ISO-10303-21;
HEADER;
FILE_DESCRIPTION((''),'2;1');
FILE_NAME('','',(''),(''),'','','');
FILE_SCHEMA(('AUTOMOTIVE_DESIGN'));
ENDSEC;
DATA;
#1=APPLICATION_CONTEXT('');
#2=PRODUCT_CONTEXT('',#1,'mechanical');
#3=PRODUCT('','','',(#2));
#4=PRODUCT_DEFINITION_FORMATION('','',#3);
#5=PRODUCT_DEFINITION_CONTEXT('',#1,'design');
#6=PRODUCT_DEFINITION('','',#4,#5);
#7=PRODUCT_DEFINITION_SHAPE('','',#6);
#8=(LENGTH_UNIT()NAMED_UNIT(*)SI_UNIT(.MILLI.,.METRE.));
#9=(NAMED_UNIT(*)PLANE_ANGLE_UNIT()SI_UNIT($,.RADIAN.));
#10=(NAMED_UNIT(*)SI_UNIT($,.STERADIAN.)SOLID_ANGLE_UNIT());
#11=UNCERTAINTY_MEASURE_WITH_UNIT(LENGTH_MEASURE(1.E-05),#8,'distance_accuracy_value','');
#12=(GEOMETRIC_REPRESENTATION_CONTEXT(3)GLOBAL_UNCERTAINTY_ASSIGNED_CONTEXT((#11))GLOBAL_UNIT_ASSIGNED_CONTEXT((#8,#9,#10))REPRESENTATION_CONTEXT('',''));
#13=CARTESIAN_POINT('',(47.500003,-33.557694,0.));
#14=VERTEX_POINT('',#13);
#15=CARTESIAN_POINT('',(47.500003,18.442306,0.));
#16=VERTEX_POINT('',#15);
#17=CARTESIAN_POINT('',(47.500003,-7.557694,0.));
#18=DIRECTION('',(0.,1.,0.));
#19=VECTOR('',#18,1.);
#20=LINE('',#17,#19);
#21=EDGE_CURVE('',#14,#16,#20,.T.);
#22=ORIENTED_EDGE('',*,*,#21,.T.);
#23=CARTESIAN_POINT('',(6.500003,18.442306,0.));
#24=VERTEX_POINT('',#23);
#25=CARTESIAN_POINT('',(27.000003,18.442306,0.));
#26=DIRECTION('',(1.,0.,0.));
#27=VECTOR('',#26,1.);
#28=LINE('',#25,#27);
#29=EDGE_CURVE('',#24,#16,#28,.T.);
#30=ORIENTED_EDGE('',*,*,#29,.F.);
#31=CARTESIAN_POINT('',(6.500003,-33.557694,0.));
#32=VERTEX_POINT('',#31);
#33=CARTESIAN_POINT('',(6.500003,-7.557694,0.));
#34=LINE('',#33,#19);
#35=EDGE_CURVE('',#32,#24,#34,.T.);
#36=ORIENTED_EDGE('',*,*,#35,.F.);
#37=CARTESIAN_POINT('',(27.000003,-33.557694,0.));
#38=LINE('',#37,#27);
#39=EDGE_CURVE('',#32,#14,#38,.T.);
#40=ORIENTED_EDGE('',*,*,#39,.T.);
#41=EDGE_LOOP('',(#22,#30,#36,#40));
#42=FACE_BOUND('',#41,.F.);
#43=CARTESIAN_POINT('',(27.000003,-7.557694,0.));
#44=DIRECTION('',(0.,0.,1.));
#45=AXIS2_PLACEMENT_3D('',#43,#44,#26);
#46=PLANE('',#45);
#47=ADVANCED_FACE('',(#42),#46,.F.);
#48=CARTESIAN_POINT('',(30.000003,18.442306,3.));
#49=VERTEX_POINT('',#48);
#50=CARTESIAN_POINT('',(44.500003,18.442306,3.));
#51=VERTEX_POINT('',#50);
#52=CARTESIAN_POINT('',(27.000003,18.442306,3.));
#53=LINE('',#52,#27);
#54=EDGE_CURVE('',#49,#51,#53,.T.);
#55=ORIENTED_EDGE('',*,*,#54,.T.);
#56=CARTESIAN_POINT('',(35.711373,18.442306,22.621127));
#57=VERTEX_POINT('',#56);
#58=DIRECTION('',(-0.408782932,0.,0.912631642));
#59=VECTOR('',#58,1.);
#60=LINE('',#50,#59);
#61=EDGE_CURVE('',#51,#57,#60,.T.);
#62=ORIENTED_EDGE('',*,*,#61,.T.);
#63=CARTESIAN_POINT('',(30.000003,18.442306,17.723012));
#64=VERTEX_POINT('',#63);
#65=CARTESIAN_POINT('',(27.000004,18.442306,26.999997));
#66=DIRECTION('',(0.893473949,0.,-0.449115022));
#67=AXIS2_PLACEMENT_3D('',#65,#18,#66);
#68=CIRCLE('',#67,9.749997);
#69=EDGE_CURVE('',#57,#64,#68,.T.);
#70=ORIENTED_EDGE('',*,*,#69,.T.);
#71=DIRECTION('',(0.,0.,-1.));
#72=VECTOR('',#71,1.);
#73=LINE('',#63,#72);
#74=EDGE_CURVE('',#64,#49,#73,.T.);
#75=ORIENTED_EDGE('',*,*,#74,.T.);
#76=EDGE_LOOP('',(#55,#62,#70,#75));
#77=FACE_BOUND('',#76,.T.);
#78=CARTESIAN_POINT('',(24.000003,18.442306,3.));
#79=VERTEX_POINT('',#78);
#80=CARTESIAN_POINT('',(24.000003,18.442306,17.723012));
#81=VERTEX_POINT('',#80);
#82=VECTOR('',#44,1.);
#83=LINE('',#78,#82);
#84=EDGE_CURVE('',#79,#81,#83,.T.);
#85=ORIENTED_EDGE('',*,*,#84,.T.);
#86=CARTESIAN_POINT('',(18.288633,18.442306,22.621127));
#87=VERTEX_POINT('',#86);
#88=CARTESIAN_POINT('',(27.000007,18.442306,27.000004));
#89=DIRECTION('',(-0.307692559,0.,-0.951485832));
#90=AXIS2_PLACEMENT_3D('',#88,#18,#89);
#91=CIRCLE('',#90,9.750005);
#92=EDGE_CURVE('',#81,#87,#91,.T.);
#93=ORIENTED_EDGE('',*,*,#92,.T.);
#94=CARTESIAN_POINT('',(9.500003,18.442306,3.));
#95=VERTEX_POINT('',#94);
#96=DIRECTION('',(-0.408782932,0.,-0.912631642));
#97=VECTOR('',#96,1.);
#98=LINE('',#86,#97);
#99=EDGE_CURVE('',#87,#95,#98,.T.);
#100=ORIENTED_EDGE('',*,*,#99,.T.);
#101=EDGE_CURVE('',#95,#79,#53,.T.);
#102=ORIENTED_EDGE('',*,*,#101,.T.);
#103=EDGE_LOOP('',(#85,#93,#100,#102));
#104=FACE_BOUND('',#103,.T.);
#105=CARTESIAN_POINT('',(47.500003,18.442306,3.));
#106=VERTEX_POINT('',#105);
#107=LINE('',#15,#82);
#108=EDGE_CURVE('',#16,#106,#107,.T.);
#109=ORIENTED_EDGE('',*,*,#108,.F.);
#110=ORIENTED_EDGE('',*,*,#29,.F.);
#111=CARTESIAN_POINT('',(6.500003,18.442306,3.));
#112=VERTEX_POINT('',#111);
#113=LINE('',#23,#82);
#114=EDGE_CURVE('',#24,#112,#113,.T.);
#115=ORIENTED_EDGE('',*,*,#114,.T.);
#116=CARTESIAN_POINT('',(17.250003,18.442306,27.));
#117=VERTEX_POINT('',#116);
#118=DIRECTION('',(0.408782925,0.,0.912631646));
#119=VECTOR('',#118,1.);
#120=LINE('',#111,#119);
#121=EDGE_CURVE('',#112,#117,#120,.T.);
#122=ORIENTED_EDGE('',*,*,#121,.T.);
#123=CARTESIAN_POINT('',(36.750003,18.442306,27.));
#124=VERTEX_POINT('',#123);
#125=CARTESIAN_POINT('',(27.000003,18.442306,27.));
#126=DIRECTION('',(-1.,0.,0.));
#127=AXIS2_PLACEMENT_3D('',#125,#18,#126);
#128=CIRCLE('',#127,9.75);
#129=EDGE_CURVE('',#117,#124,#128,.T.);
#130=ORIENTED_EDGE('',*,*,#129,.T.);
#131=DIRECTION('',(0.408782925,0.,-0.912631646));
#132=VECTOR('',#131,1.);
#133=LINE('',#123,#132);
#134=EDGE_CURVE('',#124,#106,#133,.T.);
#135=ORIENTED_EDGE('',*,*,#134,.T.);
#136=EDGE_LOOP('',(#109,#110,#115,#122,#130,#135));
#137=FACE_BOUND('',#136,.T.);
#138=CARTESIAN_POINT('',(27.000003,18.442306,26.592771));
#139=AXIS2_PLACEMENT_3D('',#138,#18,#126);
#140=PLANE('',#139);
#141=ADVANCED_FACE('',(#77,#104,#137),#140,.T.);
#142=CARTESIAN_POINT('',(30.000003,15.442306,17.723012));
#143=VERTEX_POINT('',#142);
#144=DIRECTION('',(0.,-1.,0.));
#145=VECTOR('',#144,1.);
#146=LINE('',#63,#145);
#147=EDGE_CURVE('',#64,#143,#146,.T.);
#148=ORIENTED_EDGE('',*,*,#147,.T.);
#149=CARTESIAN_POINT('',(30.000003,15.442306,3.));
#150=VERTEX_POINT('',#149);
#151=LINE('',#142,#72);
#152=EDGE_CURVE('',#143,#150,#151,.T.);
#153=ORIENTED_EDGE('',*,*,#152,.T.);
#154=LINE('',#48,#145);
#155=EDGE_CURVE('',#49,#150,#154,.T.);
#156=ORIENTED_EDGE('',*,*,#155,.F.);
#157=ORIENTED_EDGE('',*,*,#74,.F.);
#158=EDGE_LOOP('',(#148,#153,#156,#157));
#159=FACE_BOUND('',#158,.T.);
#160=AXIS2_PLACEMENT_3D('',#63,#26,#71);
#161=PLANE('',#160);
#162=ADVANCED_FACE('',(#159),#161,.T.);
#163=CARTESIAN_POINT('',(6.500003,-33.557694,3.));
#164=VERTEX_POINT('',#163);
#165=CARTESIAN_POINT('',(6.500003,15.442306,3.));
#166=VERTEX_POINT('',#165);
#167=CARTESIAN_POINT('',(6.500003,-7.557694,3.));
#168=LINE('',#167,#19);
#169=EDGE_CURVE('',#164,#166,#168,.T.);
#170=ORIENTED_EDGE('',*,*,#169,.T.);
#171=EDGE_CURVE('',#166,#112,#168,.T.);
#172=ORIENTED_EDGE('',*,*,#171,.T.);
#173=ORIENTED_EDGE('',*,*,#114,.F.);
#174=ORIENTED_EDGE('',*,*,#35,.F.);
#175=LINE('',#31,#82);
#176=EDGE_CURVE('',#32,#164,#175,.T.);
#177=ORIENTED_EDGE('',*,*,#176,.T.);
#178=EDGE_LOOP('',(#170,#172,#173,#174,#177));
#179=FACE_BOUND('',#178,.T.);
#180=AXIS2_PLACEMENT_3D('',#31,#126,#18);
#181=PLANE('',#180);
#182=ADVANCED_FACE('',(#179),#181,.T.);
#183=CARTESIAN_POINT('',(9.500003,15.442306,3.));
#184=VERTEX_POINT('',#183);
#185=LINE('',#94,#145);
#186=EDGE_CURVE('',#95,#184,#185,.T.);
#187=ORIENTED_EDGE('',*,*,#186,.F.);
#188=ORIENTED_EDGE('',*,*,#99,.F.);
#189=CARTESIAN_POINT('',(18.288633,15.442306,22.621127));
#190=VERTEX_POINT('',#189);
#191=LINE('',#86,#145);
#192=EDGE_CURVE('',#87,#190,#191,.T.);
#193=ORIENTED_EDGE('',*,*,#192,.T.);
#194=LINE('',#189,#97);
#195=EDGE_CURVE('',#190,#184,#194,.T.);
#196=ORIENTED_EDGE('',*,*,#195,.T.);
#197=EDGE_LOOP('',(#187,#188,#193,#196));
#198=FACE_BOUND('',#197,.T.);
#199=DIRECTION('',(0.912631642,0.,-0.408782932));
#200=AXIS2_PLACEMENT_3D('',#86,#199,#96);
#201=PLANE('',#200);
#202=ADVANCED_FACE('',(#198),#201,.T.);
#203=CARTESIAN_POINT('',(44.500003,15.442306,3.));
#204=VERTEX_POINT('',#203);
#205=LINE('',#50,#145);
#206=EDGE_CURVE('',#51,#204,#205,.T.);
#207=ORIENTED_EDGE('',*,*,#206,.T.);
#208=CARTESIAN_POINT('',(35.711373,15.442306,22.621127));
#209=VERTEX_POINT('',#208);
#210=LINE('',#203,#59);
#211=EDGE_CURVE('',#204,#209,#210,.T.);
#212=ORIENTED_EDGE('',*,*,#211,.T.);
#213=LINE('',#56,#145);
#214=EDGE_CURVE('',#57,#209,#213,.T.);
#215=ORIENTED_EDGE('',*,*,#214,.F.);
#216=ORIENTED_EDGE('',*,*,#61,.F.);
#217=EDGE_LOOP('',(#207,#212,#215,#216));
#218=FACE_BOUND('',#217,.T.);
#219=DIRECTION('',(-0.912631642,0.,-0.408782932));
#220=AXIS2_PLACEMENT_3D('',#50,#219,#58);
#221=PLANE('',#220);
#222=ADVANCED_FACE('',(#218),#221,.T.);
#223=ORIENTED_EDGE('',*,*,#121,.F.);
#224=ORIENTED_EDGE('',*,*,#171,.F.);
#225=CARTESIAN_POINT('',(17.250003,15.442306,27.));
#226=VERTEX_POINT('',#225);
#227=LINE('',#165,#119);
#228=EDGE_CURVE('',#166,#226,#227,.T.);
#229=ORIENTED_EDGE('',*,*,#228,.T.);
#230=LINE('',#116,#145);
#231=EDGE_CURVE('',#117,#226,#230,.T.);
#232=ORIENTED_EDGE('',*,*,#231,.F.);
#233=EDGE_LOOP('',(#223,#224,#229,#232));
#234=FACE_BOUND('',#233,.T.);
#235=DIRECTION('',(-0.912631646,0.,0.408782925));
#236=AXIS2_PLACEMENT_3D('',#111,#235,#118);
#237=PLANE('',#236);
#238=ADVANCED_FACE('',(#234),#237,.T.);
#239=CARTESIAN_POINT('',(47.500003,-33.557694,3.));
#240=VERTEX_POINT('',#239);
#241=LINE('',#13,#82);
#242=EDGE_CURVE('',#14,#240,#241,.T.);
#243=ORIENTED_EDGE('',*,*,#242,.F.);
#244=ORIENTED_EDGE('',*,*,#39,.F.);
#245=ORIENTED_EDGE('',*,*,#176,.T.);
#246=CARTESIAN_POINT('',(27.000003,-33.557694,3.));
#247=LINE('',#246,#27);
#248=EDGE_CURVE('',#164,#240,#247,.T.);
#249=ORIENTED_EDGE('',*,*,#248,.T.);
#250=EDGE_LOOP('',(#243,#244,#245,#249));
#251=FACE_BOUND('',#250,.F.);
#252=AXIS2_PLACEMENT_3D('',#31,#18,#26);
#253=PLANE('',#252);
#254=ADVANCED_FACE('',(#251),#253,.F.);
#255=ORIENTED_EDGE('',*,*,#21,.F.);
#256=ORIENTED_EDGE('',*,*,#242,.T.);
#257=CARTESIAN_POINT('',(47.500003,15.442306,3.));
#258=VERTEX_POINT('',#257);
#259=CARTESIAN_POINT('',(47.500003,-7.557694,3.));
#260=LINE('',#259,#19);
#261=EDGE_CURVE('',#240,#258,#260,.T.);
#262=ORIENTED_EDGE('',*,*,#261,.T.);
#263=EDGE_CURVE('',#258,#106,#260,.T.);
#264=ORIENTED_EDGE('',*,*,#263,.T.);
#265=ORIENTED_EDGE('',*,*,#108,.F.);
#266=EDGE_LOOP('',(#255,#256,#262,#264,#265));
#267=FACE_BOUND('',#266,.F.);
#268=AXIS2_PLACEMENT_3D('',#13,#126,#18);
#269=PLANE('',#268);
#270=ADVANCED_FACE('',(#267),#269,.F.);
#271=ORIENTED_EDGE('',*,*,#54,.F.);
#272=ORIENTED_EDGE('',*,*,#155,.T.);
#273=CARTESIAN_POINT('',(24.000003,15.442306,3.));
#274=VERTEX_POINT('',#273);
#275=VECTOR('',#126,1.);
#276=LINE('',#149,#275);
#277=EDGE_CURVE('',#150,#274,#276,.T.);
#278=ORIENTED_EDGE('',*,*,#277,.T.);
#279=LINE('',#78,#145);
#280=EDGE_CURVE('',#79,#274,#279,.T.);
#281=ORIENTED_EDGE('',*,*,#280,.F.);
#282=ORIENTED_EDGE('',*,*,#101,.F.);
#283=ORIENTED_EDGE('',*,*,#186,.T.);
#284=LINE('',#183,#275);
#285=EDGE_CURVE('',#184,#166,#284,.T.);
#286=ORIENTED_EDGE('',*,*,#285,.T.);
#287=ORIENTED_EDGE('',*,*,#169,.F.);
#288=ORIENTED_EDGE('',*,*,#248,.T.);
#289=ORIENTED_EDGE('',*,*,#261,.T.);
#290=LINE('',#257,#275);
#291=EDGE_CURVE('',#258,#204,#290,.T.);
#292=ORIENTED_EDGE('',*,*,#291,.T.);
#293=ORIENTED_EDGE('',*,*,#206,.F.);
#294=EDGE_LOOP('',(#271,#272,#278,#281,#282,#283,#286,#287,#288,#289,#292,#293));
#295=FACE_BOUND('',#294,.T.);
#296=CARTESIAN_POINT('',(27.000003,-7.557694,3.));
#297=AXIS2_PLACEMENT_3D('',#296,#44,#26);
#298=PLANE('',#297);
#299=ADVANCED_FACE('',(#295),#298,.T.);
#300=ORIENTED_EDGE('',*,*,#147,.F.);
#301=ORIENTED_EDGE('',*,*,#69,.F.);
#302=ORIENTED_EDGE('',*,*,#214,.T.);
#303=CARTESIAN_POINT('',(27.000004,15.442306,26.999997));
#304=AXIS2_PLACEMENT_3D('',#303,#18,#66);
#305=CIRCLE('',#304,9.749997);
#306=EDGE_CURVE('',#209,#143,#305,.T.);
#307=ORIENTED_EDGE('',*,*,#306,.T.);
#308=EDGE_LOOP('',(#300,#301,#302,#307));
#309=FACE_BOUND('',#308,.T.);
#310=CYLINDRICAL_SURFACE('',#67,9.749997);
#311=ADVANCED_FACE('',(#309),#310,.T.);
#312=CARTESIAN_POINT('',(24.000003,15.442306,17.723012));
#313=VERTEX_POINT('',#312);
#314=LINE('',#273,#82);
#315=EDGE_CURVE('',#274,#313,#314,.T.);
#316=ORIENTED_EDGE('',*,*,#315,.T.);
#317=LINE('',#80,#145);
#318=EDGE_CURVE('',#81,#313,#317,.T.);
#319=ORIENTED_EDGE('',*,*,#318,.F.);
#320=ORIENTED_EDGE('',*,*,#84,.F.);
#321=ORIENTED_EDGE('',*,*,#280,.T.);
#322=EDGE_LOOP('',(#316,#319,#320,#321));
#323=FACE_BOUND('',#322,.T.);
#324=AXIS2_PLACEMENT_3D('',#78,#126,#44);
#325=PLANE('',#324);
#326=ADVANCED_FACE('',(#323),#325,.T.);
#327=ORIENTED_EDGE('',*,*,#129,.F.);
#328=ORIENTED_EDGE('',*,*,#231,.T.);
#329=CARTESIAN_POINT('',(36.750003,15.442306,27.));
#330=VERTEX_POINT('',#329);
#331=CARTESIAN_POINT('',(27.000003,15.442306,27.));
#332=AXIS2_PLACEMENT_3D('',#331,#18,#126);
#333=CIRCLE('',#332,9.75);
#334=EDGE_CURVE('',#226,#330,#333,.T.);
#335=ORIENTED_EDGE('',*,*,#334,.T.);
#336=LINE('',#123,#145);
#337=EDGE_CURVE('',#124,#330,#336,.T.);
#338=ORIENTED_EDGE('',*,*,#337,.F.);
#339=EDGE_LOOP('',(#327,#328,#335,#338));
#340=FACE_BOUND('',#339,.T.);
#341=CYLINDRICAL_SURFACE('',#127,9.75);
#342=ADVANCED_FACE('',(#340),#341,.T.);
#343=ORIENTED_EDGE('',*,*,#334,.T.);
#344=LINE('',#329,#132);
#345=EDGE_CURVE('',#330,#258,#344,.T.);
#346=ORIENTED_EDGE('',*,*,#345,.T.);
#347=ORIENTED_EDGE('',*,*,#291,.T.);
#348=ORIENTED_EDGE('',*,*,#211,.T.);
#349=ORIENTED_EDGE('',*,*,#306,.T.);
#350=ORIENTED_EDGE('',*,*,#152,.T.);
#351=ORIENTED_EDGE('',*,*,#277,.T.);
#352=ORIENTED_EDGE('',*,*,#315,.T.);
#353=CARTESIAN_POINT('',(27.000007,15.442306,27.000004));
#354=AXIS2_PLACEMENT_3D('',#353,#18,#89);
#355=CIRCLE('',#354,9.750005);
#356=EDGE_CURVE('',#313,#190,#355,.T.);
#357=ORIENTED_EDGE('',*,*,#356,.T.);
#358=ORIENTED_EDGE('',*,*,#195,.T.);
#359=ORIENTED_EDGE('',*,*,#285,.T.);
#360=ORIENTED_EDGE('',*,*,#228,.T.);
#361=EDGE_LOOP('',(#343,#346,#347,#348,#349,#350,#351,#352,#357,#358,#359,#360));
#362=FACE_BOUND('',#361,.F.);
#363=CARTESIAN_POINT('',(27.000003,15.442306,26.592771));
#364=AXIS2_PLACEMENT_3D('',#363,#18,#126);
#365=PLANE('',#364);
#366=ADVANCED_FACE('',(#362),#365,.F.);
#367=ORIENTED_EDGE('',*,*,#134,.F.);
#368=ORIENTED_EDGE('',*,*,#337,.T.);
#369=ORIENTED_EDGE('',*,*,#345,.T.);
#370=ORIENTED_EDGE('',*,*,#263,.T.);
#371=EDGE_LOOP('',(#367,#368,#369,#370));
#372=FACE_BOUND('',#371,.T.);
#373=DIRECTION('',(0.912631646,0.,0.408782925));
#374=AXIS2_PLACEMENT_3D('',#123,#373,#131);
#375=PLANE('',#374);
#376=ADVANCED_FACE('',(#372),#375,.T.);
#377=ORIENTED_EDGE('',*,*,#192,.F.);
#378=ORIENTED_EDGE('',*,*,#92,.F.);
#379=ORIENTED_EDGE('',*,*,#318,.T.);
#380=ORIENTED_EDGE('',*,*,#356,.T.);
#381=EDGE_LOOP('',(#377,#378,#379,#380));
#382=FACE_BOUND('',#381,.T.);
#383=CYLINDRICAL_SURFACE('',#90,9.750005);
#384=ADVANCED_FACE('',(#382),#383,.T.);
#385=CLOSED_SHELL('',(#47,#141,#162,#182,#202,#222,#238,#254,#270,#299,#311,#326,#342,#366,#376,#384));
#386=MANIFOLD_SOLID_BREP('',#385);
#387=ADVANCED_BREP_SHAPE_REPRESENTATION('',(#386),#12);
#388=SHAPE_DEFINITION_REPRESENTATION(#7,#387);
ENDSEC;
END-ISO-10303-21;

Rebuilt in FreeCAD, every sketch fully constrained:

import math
import FreeCAD as App
import Part
import Sketcher
Q = App.Units.Quantity

doc = App.newDocument("Part")
body = doc.addObject("PartDesign::Body", "Body")

# Sketch on XY plane
sketch1 = body.newObject("Sketcher::SketchObject", "Sketch")
sketch1.AttachmentSupport = (doc.getObject("XY_Plane"), [""])
sketch1.MapMode = "FlatFace"
sketch1.addGeometry([
    Part.LineSegment(App.Vector(7, 18, 0), App.Vector(7, -34, 0)),
    Part.LineSegment(App.Vector(7, -34, 0), App.Vector(48, -34, 0)),
    Part.LineSegment(App.Vector(48, -34, 0), App.Vector(48, 18, 0)),
    Part.LineSegment(App.Vector(48, 18, 0), App.Vector(7, 18, 0)),
], False)
sketch1.addConstraint([
    Sketcher.Constraint("Coincident", 0, 2, 1, 1),
    Sketcher.Constraint("Coincident", 1, 2, 2, 1),
    Sketcher.Constraint("Coincident", 2, 2, 3, 1),
    Sketcher.Constraint("Coincident", 3, 2, 0, 1),
    Sketcher.Constraint("Vertical", 0),
    Sketcher.Constraint("Horizontal", 1),
    Sketcher.Constraint("Vertical", 2),
    Sketcher.Constraint("Horizontal", 3),
    Sketcher.Constraint("DistanceX", 1, 1, 1, 2, Q("41 mm")),
    Sketcher.Constraint("DistanceY", 0, 2, 0, 1, Q("52 mm")),
    Sketcher.Constraint("DistanceX", -1, 1, 0, 2, Q("6.500003 mm")),
    Sketcher.Constraint("DistanceY", 0, 2, -1, 1, Q("33.557694 mm")),
])
pad1 = body.newObject("PartDesign::Pad", "Pad")
pad1.Profile = sketch1
pad1.Length = 3

# Sketch on XZ plane
sketch2 = body.newObject("Sketcher::SketchObject", "Sketch001")
sketch2.AttachmentSupport = (doc.getObject("XZ_Plane"), [""])
sketch2.MapMode = "FlatFace"
sketch2.AttachmentOffset = App.Placement(App.Vector(0, 0, -18.442306), App.Rotation())
sketch2.addGeometry([
    Part.ArcOfCircle(Part.Circle(App.Vector(27, 27, 0), App.Vector(0, 0, 1), 9.8), math.radians(0), math.radians(180)),  # 0
    Part.LineSegment(App.Vector(36.8, 27, 0), App.Vector(47.5, 3, 0)),  # 1
    Part.LineSegment(App.Vector(47.5, 3, 0), App.Vector(44.5, 3, 0)),  # 2
    Part.LineSegment(App.Vector(44.5, 3, 0), App.Vector(35.7, 22.6, 0)),  # 3
    Part.ArcOfCircle(Part.Circle(App.Vector(27, 27, 0), App.Vector(0, 0, 1), 9.7), math.radians(-72), math.radians(-27)),  # 4
    Part.LineSegment(App.Vector(30, 17.7, 0), App.Vector(30, 3, 0)),  # 5
    Part.LineSegment(App.Vector(30, 3, 0), App.Vector(24, 3, 0)),  # 6
    Part.LineSegment(App.Vector(24, 3, 0), App.Vector(24, 17.7, 0)),  # 7
    Part.ArcOfCircle(Part.Circle(App.Vector(27, 27, 0), App.Vector(0, 0, 1), 9.8), math.radians(-153), math.radians(-108)),  # 8
    Part.LineSegment(App.Vector(18.3, 22.6, 0), App.Vector(9.5, 3, 0)),  # 9
    Part.LineSegment(App.Vector(9.5, 3, 0), App.Vector(6.5, 3, 0)),  # 10
    Part.LineSegment(App.Vector(6.5, 3, 0), App.Vector(17.3, 27, 0)),  # 11
], False)
sketch2.addConstraint([
    Sketcher.Constraint("Coincident", 0, 1, 1, 1),
    Sketcher.Constraint("Coincident", 1, 2, 2, 1),
    Sketcher.Constraint("Coincident", 2, 2, 3, 1),
    Sketcher.Constraint("Coincident", 3, 2, 4, 2),
    Sketcher.Constraint("Coincident", 4, 1, 5, 1),
    Sketcher.Constraint("Coincident", 5, 2, 6, 1),
    Sketcher.Constraint("Coincident", 6, 2, 7, 1),
    Sketcher.Constraint("Coincident", 7, 2, 8, 2),
    Sketcher.Constraint("Coincident", 8, 1, 9, 1),
    Sketcher.Constraint("Coincident", 9, 2, 10, 1),
    Sketcher.Constraint("Coincident", 10, 2, 11, 1),
    Sketcher.Constraint("Coincident", 11, 2, 0, 2),
    Sketcher.Constraint("Horizontal", 2),
    Sketcher.Constraint("Vertical", 5),
    Sketcher.Constraint("Horizontal", 6),
    Sketcher.Constraint("Vertical", 7),
    Sketcher.Constraint("Horizontal", 10),
    Sketcher.Constraint("Coincident", 4, 3, 0, 3),
    Sketcher.Constraint("Coincident", 8, 3, 0, 3),
    Sketcher.Constraint("Parallel", 1, 3),
    Sketcher.Constraint("Parallel", 9, 11),
    Sketcher.Constraint("Horizontal", 2, 2, 5, 2),
    Sketcher.Constraint("Horizontal", 4, 1, 7, 2),
    Sketcher.Constraint("Horizontal", 3, 2, 8, 1),
    Sketcher.Constraint("Horizontal", 6, 2, 9, 2),
    Sketcher.Constraint("Horizontal", 0, 1, 11, 2),
    Sketcher.Constraint("Equal", 2, 10),
    Sketcher.Constraint("Equal", 3, 9),
    Sketcher.Constraint("DistanceX", 2, 2, 2, 1, Q("3 mm")),
    Sketcher.Constraint("DistanceX", 6, 2, 6, 1, Q("6 mm")),
    Sketcher.Constraint("Radius", 0, Q("9.75 mm")),
    Sketcher.Constraint("DistanceY", -1, 1, 0, 3, Q("27 mm")),
    Sketcher.Constraint("DistanceY", -1, 1, 0, 1, Q("27 mm")),
    Sketcher.Constraint("DistanceY", -1, 1, 1, 2, Q("3 mm")),
    Sketcher.Constraint("DistanceX", 4, 3, 1, 2, Q("20.499999 mm")),
    Sketcher.Constraint("Radius", 4, Q("9.749997 mm")),
    Sketcher.Constraint("DistanceX", -1, 1, 0, 3, Q("27.000003 mm")),
])
pad2 = body.newObject("PartDesign::Pad", "Pad001")
pad2.Profile = sketch2
pad2.Length = 3

doc.recompute()
